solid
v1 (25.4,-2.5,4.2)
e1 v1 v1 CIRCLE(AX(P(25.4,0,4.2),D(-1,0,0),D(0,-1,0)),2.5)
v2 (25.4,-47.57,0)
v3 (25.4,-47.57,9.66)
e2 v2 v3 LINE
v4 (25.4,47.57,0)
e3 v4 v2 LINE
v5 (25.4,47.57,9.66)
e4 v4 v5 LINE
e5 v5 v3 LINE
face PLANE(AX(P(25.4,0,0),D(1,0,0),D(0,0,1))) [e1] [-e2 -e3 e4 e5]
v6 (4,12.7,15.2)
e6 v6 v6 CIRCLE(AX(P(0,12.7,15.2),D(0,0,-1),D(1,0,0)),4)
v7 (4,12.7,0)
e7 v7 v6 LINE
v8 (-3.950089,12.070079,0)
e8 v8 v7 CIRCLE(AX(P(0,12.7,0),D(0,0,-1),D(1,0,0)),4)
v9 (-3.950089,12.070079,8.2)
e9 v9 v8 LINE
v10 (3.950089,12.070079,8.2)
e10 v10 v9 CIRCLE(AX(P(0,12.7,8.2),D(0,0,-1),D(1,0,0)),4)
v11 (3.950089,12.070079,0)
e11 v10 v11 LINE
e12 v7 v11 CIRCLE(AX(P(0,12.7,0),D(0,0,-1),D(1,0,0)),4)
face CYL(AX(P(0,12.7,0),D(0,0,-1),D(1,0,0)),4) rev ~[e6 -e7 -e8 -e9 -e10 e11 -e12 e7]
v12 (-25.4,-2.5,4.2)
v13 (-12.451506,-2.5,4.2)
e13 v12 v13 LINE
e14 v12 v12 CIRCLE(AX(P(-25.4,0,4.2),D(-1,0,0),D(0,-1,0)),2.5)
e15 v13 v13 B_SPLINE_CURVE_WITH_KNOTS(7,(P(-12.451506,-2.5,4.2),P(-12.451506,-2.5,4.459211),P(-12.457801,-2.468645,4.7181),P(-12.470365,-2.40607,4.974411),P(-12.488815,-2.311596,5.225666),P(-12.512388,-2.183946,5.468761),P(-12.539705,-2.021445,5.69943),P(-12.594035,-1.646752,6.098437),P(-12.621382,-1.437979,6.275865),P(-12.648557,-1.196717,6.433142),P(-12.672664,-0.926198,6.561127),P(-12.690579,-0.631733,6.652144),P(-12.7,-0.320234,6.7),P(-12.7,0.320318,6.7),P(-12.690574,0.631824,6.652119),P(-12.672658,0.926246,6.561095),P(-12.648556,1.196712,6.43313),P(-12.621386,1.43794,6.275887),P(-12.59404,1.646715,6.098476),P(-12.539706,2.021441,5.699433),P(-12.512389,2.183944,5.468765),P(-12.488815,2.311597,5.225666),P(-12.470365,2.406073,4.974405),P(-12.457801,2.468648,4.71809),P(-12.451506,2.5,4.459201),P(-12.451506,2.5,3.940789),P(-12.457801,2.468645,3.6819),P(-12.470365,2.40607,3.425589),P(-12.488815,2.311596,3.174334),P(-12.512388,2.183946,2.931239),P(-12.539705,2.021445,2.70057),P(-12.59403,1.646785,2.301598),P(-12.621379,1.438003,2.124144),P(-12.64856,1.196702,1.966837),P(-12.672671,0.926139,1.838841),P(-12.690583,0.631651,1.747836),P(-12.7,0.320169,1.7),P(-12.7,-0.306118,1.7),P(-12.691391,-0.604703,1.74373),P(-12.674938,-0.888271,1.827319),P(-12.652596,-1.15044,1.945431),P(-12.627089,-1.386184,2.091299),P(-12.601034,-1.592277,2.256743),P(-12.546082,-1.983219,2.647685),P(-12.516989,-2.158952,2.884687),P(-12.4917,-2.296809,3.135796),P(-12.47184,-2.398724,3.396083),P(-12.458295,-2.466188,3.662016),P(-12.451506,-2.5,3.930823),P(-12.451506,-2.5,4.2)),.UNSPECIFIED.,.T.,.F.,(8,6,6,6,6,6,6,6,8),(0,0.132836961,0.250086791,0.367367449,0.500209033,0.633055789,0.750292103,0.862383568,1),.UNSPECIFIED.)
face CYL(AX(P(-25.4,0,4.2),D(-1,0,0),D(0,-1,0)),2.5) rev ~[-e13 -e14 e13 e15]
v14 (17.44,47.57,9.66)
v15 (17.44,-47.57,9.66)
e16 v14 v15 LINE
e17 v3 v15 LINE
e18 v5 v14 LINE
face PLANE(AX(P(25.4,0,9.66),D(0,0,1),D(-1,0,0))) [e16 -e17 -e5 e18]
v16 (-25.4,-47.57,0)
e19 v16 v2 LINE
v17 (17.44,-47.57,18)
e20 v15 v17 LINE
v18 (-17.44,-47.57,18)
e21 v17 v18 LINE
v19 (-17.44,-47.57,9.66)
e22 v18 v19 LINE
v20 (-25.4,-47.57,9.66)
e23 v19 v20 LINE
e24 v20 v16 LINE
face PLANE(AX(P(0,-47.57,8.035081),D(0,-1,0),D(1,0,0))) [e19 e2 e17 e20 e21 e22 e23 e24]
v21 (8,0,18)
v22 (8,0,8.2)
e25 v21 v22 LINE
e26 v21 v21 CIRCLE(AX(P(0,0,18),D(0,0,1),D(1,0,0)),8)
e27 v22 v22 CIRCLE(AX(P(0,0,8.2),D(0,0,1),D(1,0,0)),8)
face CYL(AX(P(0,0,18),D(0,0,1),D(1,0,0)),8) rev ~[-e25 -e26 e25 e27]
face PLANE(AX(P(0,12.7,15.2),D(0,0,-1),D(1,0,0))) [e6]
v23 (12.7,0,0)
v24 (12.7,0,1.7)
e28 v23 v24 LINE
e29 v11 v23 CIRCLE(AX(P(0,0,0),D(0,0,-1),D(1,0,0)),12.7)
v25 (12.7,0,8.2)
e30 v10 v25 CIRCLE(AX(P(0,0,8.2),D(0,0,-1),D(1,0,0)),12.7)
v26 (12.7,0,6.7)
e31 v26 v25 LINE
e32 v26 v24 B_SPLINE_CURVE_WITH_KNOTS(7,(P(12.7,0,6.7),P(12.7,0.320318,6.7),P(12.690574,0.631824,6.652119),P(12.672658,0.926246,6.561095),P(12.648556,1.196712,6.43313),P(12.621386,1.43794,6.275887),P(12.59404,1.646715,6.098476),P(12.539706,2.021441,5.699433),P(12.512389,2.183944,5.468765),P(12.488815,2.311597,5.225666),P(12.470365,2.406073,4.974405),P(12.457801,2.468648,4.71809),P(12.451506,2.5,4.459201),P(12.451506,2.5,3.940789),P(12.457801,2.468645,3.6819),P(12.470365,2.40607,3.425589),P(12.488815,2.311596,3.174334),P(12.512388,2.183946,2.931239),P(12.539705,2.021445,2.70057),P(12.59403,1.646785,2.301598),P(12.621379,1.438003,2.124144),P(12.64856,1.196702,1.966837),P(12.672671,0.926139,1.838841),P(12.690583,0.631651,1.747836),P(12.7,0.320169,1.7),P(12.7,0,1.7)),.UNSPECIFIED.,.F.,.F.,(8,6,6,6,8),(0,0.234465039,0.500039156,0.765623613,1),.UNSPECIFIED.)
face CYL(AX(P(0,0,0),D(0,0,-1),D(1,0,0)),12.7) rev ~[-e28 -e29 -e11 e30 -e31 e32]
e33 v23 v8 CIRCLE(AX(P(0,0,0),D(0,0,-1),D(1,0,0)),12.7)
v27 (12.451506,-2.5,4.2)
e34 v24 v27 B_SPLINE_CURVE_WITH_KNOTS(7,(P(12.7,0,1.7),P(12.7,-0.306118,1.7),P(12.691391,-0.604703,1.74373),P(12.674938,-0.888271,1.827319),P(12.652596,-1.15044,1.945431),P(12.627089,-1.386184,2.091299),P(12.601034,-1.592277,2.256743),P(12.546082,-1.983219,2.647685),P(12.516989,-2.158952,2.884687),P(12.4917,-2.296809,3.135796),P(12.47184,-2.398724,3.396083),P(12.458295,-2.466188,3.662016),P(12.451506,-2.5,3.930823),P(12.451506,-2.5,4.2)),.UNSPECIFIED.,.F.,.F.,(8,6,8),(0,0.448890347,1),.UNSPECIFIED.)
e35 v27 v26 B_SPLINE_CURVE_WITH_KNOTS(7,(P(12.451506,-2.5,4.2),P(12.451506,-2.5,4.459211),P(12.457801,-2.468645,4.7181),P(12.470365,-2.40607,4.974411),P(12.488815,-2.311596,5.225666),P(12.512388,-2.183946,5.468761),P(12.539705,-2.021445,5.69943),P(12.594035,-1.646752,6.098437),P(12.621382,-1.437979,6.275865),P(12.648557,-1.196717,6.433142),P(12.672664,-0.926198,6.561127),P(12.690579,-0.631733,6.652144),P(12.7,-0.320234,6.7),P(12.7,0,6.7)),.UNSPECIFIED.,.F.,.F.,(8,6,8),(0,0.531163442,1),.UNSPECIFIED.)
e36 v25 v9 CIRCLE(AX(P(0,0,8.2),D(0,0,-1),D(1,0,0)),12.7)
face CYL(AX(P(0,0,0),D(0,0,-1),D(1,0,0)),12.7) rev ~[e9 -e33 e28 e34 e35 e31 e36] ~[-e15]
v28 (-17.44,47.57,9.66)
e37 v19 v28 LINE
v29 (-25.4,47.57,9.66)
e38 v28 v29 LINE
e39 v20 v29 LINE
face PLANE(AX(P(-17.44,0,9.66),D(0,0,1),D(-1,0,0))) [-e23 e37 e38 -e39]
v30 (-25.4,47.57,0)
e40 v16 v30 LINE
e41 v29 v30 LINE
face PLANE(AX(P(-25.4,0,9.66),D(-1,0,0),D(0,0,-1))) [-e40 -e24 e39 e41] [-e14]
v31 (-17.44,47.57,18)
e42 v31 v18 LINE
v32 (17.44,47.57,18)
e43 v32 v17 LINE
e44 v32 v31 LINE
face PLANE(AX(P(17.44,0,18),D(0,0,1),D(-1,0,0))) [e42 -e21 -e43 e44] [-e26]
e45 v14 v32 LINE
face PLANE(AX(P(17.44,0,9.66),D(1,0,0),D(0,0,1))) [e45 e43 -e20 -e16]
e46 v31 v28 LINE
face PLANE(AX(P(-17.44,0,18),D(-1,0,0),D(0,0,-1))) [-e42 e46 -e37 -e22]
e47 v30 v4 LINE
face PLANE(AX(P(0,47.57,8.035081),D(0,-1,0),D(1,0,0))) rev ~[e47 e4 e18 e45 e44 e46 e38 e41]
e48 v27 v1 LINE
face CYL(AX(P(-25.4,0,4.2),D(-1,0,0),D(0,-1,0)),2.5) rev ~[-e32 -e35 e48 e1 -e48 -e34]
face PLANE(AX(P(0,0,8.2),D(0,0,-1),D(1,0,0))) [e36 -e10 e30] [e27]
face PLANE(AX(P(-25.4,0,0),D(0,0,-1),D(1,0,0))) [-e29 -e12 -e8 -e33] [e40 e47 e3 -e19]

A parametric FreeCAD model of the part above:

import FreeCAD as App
import Part
import Sketcher

V = App.Vector
Q = App.Units.Quantity

doc = App.newDocument("Part")
body = doc.addObject("PartDesign::Body", "Body")

# Sketch on XZ plane
sketch1 = doc.addObject("Sketcher::SketchObject", "Sketch")
body.addObject(sketch1)
sketch1.AttachmentSupport = (doc.XZ_Plane, [""])
sketch1.MapMode = "FlatFace"
sketch1.addGeometry([
    Part.LineSegment(V(-25.4, 0, 0), V(25.4, 0, 0)),  # 0
    Part.LineSegment(V(25.4, 0, 0), V(25.4, 9.66, 0)),  # 1
    Part.LineSegment(V(25.4, 9.66, 0), V(17.44, 9.66, 0)),  # 2
    Part.LineSegment(V(17.44, 9.66, 0), V(17.44, 18, 0)),  # 3
    Part.LineSegment(V(17.44, 18, 0), V(-17.44, 18, 0)),  # 4
    Part.LineSegment(V(-17.44, 18, 0), V(-17.44, 9.66, 0)),  # 5
    Part.LineSegment(V(-17.44, 9.66, 0), V(-25.4, 9.66, 0)),  # 6
    Part.LineSegment(V(-25.4, 9.66, 0), V(-25.4, 0, 0)),  # 7
], False)
sketch1.addConstraint([
    Sketcher.Constraint("Coincident", 0, 2, 1, 1),
    Sketcher.Constraint("Coincident", 1, 2, 2, 1),
    Sketcher.Constraint("Coincident", 2, 2, 3, 1),
    Sketcher.Constraint("Coincident", 3, 2, 4, 1),
    Sketcher.Constraint("Coincident", 4, 2, 5, 1),
    Sketcher.Constraint("Coincident", 5, 2, 6, 1),
    Sketcher.Constraint("Coincident", 6, 2, 7, 1),
    Sketcher.Constraint("Coincident", 7, 2, 0, 1),
    Sketcher.Constraint("Horizontal", 0),
    Sketcher.Constraint("Vertical", 1),
    Sketcher.Constraint("Horizontal", 2),
    Sketcher.Constraint("Vertical", 3),
    Sketcher.Constraint("Horizontal", 4),
    Sketcher.Constraint("Vertical", 5),
    Sketcher.Constraint("Horizontal", 6),
    Sketcher.Constraint("Vertical", 7),
    Sketcher.Constraint("Symmetric", 0, 2, 7, 2, -1, 1),
    Sketcher.Constraint("Symmetric", 2, 2, 5, 2, -2),
    Sketcher.Constraint("DistanceX", 0, 1, 0, 2, Q("50.8 mm")),
    Sketcher.Constraint("DistanceY", -1, 1, 3, 2, Q("18 mm")),
    Sketcher.Constraint("DistanceX", 2, 2, 2, 1, Q("7.96 mm")),
    Sketcher.Constraint("DistanceY", 1, 1, 1, 2, Q("9.66 mm")),
])
pad1 = doc.addObject("PartDesign::Pad", "Pad")
body.addObject(pad1)
pad1.Profile = sketch1
pad1.Length = 95.14
pad1.Midplane = True

# Sketch on XY plane
sketch2 = doc.addObject("Sketcher::SketchObject", "Sketch001")
body.addObject(sketch2)
sketch2.AttachmentSupport = (doc.XY_Plane, [""])
sketch2.MapMode = "FlatFace"
sketch2.AttachmentOffset = App.Placement(V(0, 0, 18), App.Rotation())
sketch2.addGeometry(Part.Circle(V(0, 0, 0), V(0, 0, 1), 8), False)
sketch2.addConstraint([
    Sketcher.Constraint("Coincident", 0, 3, -1, 1),
    Sketcher.Constraint("Diameter", 0, Q("16 mm")),
])
pocket1 = doc.addObject("PartDesign::Pocket", "Pocket")
body.addObject(pocket1)
pocket1.Profile = sketch2
pocket1.Length = 25

# Sketch on XY plane
sketch3 = doc.addObject("Sketcher::SketchObject", "Sketch002")
body.addObject(sketch3)
sketch3.AttachmentSupport = (doc.XY_Plane, [""])
sketch3.MapMode = "FlatFace"
sketch3.addGeometry(Part.Circle(V(0, 0, 0), V(0, 0, 1), 12.7), False)
sketch3.addConstraint([
    Sketcher.Constraint("Coincident", 0, 3, -1, 1),
    Sketcher.Constraint("Diameter", 0, Q("25.4 mm")),
])
pocket2 = doc.addObject("PartDesign::Pocket", "Pocket001")
body.addObject(pocket2)
pocket2.Profile = sketch3
pocket2.Length = 8.2
pocket2.Reversed = True

# Sketch on YZ plane
sketch4 = doc.addObject("Sketcher::SketchObject", "Sketch003")
body.addObject(sketch4)
sketch4.AttachmentSupport = (doc.YZ_Plane, [""])
sketch4.MapMode = "FlatFace"
sketch4.AttachmentOffset = App.Placement(V(0, 0, -25.4), App.Rotation())
sketch4.addGeometry(Part.Circle(V(0, 4.2, 0), V(0, 0, 1), 2.5), False)
sketch4.addConstraint([
    Sketcher.Constraint("PointOnObject", 0, 3, -2),
    Sketcher.Constraint("Diameter", 0, Q("5 mm")),
    Sketcher.Constraint("DistanceY", -1, 1, 0, 3, Q("4.2 mm")),
])
pocket3 = doc.addObject("PartDesign::Pocket", "Pocket002")
body.addObject(pocket3)
pocket3.Profile = sketch4
pocket3.Type = "ThroughAll"
pocket3.Reversed = True

# Sketch on XY plane
sketch5 = doc.addObject("Sketcher::SketchObject", "Sketch004")
body.addObject(sketch5)
sketch5.AttachmentSupport = (doc.XY_Plane, [""])
sketch5.MapMode = "FlatFace"
sketch5.addGeometry(Part.Circle(V(0, 12.7, 0), V(0, 0, 1), 4), False)
sketch5.addConstraint([
    Sketcher.Constraint("PointOnObject", 0, 3, -2),
    Sketcher.Constraint("Diameter", 0, Q("8 mm")),
    Sketcher.Constraint("DistanceY", -1, 1, 0, 3, Q("12.7 mm")),
])
pocket4 = doc.addObject("PartDesign::Pocket", "Pocket003")
body.addObject(pocket4)
pocket4.Profile = sketch5
pocket4.Length = 15.2
pocket4.Reversed = True

doc.recompute()
